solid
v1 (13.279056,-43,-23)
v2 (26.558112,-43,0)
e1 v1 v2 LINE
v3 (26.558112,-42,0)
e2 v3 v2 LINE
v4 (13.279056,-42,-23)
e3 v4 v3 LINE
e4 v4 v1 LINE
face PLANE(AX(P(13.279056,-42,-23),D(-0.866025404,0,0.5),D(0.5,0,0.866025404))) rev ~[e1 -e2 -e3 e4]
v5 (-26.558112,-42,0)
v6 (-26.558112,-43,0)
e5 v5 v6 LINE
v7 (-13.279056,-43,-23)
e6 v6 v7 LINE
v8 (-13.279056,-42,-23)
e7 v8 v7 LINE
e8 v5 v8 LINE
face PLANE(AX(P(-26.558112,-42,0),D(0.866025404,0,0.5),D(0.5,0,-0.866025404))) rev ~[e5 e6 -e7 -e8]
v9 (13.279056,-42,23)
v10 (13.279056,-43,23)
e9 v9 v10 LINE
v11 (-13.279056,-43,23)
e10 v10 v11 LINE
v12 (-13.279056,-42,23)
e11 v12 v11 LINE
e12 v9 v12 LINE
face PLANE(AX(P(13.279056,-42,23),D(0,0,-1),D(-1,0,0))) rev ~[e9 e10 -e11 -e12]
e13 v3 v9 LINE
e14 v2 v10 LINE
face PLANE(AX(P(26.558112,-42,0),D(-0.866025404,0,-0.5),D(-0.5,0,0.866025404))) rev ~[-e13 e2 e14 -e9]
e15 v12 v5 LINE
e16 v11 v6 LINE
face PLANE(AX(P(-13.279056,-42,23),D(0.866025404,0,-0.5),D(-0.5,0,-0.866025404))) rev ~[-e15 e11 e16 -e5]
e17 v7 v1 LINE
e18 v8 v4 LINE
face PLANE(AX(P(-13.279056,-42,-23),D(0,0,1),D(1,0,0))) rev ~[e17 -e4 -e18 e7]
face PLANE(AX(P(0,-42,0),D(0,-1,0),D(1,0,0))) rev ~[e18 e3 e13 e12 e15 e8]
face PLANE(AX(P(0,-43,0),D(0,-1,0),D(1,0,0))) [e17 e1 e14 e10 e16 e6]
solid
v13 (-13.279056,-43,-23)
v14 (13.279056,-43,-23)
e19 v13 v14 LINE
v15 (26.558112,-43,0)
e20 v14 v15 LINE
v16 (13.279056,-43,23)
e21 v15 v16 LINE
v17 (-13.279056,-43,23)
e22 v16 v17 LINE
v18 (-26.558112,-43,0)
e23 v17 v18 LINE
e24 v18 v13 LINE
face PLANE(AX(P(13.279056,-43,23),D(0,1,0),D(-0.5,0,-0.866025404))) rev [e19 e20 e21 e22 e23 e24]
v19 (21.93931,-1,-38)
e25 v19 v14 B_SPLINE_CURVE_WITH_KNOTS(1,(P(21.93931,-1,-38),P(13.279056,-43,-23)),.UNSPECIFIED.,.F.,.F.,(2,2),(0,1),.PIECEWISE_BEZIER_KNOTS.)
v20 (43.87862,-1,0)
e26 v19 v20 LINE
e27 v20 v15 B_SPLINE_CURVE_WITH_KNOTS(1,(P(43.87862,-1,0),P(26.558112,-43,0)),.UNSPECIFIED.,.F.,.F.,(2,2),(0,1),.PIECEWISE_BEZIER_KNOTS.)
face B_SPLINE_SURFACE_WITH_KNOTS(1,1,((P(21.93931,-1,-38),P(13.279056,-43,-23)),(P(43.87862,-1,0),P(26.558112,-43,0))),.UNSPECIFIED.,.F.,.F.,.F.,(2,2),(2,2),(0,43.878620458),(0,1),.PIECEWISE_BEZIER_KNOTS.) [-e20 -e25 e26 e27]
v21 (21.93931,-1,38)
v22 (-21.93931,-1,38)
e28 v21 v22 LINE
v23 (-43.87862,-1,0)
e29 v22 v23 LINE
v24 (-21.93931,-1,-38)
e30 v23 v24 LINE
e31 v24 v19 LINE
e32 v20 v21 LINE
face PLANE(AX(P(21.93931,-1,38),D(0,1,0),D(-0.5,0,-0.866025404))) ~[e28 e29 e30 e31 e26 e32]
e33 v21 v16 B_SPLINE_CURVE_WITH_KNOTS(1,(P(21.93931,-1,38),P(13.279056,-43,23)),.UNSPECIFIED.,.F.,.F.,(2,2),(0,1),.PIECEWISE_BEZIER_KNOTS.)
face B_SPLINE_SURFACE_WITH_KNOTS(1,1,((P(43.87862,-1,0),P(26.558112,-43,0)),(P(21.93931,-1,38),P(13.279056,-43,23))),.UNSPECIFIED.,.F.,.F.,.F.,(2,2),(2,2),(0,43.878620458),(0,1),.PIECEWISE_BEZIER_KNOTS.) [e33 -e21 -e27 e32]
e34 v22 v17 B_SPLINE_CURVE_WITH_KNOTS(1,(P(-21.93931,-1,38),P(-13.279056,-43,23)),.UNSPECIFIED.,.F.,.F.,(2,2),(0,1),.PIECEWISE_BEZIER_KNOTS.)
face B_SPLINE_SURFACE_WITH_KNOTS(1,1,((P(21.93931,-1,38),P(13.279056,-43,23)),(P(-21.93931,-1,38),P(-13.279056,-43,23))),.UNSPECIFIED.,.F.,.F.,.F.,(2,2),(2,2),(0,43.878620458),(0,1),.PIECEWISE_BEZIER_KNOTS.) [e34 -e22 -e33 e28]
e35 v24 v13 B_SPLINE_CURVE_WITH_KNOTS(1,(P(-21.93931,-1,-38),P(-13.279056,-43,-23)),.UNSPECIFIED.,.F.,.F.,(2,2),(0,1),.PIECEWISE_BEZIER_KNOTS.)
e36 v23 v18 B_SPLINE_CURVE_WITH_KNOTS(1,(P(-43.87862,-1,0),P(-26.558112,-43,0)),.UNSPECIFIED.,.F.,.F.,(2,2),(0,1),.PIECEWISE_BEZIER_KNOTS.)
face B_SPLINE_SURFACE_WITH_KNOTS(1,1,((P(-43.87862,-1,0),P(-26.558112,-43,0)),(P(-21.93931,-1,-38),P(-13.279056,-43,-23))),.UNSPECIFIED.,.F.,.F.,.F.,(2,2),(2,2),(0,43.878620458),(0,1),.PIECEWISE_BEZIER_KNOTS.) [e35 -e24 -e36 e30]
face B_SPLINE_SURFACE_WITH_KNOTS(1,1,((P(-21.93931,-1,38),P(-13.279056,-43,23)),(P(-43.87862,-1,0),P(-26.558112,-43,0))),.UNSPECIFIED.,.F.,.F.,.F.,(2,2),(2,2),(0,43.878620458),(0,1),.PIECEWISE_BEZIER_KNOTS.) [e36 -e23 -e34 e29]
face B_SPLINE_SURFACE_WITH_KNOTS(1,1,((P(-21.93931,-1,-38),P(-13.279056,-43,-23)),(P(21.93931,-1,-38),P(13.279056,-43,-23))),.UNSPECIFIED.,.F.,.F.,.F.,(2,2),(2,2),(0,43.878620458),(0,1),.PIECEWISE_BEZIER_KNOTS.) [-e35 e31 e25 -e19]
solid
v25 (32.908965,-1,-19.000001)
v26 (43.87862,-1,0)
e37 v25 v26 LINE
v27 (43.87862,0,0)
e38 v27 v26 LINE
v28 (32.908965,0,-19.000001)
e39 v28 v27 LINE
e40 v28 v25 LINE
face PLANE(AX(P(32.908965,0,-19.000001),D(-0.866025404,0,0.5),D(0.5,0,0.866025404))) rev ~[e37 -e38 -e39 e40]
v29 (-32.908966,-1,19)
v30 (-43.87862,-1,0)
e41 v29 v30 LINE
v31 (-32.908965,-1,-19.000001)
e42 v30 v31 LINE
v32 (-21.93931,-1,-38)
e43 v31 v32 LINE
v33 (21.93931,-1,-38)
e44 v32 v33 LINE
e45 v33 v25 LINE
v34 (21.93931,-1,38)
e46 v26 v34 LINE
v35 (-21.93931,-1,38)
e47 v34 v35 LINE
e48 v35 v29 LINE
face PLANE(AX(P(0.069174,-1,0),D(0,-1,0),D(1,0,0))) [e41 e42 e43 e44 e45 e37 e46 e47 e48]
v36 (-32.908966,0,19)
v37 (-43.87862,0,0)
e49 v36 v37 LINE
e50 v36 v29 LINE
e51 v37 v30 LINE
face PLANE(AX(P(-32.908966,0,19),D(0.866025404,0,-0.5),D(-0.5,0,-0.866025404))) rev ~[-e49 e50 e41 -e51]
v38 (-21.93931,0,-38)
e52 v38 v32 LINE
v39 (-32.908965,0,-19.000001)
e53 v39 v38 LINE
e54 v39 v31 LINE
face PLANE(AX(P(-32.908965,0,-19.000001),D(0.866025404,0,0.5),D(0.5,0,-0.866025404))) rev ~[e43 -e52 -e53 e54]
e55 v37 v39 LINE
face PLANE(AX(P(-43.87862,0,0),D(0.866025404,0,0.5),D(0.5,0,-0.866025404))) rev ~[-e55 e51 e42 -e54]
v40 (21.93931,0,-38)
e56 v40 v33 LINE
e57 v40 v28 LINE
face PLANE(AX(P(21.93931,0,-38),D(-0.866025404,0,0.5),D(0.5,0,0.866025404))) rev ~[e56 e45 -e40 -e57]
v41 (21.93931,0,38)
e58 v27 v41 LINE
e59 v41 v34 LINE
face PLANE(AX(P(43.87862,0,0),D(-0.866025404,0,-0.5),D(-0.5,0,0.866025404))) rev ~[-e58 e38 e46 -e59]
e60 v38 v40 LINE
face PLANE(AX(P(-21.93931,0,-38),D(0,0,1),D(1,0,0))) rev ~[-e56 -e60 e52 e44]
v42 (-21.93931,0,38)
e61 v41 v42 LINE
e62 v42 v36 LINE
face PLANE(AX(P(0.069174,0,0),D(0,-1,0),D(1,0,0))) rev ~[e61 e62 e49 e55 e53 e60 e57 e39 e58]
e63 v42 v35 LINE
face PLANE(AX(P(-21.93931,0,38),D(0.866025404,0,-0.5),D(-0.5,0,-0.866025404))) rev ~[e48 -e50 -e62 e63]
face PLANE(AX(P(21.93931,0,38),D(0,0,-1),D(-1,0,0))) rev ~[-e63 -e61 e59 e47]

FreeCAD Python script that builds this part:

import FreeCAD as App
import Part
import Sketcher

V = App.Vector
Q = App.Units.Quantity


def add_polygon(sketch, points):
    """Adds a closed chain of lines whose ends are joined by coincident constraints."""
    first, n = sketch.GeometryCount, len(points)
    for a, b in zip(points, points[1:] + points[:1]):
        sketch.addGeometry(Part.LineSegment(App.Vector(*a, 0), App.Vector(*b, 0)), False)
    for i in range(n):
        sketch.addConstraint(Sketcher.Constraint("Coincident", first + i, 2, first + (i + 1) % n, 1))

doc = App.newDocument("Part")
body = doc.addObject("PartDesign::Body", "Body")

# Sketch on XZ plane
sketch1 = doc.addObject("Sketcher::SketchObject", "Sketch")
body.addObject(sketch1)
sketch1.AttachmentSupport = (doc.XZ_Plane, [""])
sketch1.MapMode = "FlatFace"
add_polygon(sketch1, [(-33, -19), (-22, -38), (22, -38), (33, -19), (44, 0), (22, 38), (-22, 38), (-33, 19), (-44, 0)])  # lines 0-8
sketch1.addConstraint([
    Sketcher.Constraint("Horizontal", 1),
    Sketcher.Constraint("Horizontal", 5),
    Sketcher.Constraint("Symmetric", 0, 2, 4, 2, -1, 1),
    Sketcher.Constraint("Symmetric", 2, 2, 6, 2, -1, 1),
    Sketcher.Constraint("Symmetric", 3, 2, 7, 2, -1, 1),
    Sketcher.Constraint("Symmetric", 2, 2, 8, 2, -2),
    Sketcher.Constraint("PointOnObject", 3, 2, -1),
    Sketcher.Constraint("Parallel", 2, 3),
    Sketcher.Constraint("Parallel", 0, 4),
    Sketcher.Constraint("Parallel", 3, 6),
    Sketcher.Constraint("Equal", 2, 3),
    Sketcher.Constraint("Angle", 0, Q("-60 deg")),
    Sketcher.Constraint("DistanceY", 0, 2, -1, 1, Q("38 mm")),
    Sketcher.Constraint("DistanceX", 1, 1, 1, 2, Q("43.87862 mm")),
])
pad1 = doc.addObject("PartDesign::Pad", "Pad")
body.addObject(pad1)
pad1.Profile = sketch1
pad1.Length = 1
body2 = doc.addObject("PartDesign::Body", "Body001")

# Sketch on XZ plane
sketch2 = doc.addObject("Sketcher::SketchObject", "Sketch001")
body2.addObject(sketch2)
sketch2.AttachmentSupport = (doc.getObject("XZ_Plane001"), [""])
sketch2.MapMode = "FlatFace"
sketch2.AttachmentOffset = App.Placement(V(0, 0, 42), App.Rotation())
add_polygon(sketch2, [(13, 23), (-13, 23), (-27, 0), (-13, -23), (13, -23), (27, 0)])  # lines 0-5
sketch2.addConstraint([
    Sketcher.Constraint("Horizontal", 0),
    Sketcher.Constraint("Horizontal", 3),
    Sketcher.Constraint("Symmetric", 0, 2, 3, 2, -1, 1),
    Sketcher.Constraint("Symmetric", 1, 2, 4, 2, -1, 1),
    Sketcher.Constraint("PointOnObject", 1, 2, -1),
    Sketcher.Constraint("Parallel", 2, 5),
    Sketcher.Constraint("Vertical", 0, 2, 2, 2),
    Sketcher.Constraint("Angle", 1, Q("-120 deg")),
    Sketcher.Constraint("DistanceY", -1, 1, 0, 2, Q("23 mm")),
    Sketcher.Constraint("DistanceX", 0, 2, 0, 1, Q("26.558112 mm")),
])
pad2 = doc.addObject("PartDesign::Pad", "Pad001")
body2.addObject(pad2)
pad2.Profile = sketch2
pad2.Length = 1
body3 = doc.addObject("PartDesign::Body", "Body002")

# Sketch on XZ plane
sketch3 = doc.addObject("Sketcher::SketchObject", "Sketch002")
body3.addObject(sketch3)
sketch3.AttachmentSupport = (doc.getObject("XZ_Plane002"), [""])
sketch3.MapMode = "FlatFace"
sketch3.AttachmentOffset = App.Placement(V(0, 0, 1), App.Rotation())
add_polygon(sketch3, [(22, 38), (-22, 38), (-44, 0), (-22, -38), (22, -38), (44, 0)])  # lines 0-5
sketch3.addConstraint([
    Sketcher.Constraint("Horizontal", 0),
    Sketcher.Constraint("Horizontal", 3),
    Sketcher.Constraint("Symmetric", 0, 2, 3, 2, -1, 1),
    Sketcher.Constraint("Symmetric", 1, 2, 4, 2, -1, 1),
    Sketcher.Constraint("PointOnObject", 1, 2, -1),
    Sketcher.Constraint("Parallel", 2, 5),
    Sketcher.Constraint("Vertical", 0, 2, 2, 2),
    Sketcher.Constraint("Angle", 1, Q("-120 deg")),
    Sketcher.Constraint("DistanceY", -1, 1, 0, 2, Q("38 mm")),
    Sketcher.Constraint("DistanceX", 0, 2, 0, 1, Q("43.87862 mm")),
])

# Sketch on XZ plane
sketch4 = doc.addObject("Sketcher::SketchObject", "Sketch003")
body3.addObject(sketch4)
sketch4.AttachmentSupport = (doc.getObject("XZ_Plane002"), [""])
sketch4.MapMode = "FlatFace"
sketch4.AttachmentOffset = App.Placement(V(0, 0, 43), App.Rotation())
add_polygon(sketch4, [(13, 23), (-13, 23), (-27, 0), (-13, -23), (13, -23), (27, 0)])  # lines 0-5
sketch4.addConstraint([
    Sketcher.Constraint("Horizontal", 0),
    Sketcher.Constraint("Horizontal", 3),
    Sketcher.Constraint("Symmetric", 0, 2, 3, 2, -1, 1),
    Sketcher.Constraint("Symmetric", 1, 2, 4, 2, -1, 1),
    Sketcher.Constraint("PointOnObject", 1, 2, -1),
    Sketcher.Constraint("Parallel", 2, 5),
    Sketcher.Constraint("Vertical", 0, 2, 2, 2),
    Sketcher.Constraint("Angle", 1, Q("-120 deg")),
    Sketcher.Constraint("DistanceY", -1, 1, 0, 2, Q("23 mm")),
    Sketcher.Constraint("DistanceX", 0, 2, 0, 1, Q("26.558112 mm")),
])

additiveloft = doc.addObject("PartDesign::AdditiveLoft", "AdditiveLoft")
body3.addObject(additiveloft)
additiveloft.Profile = sketch3
additiveloft.Sections = [sketch4]

doc.recompute()
